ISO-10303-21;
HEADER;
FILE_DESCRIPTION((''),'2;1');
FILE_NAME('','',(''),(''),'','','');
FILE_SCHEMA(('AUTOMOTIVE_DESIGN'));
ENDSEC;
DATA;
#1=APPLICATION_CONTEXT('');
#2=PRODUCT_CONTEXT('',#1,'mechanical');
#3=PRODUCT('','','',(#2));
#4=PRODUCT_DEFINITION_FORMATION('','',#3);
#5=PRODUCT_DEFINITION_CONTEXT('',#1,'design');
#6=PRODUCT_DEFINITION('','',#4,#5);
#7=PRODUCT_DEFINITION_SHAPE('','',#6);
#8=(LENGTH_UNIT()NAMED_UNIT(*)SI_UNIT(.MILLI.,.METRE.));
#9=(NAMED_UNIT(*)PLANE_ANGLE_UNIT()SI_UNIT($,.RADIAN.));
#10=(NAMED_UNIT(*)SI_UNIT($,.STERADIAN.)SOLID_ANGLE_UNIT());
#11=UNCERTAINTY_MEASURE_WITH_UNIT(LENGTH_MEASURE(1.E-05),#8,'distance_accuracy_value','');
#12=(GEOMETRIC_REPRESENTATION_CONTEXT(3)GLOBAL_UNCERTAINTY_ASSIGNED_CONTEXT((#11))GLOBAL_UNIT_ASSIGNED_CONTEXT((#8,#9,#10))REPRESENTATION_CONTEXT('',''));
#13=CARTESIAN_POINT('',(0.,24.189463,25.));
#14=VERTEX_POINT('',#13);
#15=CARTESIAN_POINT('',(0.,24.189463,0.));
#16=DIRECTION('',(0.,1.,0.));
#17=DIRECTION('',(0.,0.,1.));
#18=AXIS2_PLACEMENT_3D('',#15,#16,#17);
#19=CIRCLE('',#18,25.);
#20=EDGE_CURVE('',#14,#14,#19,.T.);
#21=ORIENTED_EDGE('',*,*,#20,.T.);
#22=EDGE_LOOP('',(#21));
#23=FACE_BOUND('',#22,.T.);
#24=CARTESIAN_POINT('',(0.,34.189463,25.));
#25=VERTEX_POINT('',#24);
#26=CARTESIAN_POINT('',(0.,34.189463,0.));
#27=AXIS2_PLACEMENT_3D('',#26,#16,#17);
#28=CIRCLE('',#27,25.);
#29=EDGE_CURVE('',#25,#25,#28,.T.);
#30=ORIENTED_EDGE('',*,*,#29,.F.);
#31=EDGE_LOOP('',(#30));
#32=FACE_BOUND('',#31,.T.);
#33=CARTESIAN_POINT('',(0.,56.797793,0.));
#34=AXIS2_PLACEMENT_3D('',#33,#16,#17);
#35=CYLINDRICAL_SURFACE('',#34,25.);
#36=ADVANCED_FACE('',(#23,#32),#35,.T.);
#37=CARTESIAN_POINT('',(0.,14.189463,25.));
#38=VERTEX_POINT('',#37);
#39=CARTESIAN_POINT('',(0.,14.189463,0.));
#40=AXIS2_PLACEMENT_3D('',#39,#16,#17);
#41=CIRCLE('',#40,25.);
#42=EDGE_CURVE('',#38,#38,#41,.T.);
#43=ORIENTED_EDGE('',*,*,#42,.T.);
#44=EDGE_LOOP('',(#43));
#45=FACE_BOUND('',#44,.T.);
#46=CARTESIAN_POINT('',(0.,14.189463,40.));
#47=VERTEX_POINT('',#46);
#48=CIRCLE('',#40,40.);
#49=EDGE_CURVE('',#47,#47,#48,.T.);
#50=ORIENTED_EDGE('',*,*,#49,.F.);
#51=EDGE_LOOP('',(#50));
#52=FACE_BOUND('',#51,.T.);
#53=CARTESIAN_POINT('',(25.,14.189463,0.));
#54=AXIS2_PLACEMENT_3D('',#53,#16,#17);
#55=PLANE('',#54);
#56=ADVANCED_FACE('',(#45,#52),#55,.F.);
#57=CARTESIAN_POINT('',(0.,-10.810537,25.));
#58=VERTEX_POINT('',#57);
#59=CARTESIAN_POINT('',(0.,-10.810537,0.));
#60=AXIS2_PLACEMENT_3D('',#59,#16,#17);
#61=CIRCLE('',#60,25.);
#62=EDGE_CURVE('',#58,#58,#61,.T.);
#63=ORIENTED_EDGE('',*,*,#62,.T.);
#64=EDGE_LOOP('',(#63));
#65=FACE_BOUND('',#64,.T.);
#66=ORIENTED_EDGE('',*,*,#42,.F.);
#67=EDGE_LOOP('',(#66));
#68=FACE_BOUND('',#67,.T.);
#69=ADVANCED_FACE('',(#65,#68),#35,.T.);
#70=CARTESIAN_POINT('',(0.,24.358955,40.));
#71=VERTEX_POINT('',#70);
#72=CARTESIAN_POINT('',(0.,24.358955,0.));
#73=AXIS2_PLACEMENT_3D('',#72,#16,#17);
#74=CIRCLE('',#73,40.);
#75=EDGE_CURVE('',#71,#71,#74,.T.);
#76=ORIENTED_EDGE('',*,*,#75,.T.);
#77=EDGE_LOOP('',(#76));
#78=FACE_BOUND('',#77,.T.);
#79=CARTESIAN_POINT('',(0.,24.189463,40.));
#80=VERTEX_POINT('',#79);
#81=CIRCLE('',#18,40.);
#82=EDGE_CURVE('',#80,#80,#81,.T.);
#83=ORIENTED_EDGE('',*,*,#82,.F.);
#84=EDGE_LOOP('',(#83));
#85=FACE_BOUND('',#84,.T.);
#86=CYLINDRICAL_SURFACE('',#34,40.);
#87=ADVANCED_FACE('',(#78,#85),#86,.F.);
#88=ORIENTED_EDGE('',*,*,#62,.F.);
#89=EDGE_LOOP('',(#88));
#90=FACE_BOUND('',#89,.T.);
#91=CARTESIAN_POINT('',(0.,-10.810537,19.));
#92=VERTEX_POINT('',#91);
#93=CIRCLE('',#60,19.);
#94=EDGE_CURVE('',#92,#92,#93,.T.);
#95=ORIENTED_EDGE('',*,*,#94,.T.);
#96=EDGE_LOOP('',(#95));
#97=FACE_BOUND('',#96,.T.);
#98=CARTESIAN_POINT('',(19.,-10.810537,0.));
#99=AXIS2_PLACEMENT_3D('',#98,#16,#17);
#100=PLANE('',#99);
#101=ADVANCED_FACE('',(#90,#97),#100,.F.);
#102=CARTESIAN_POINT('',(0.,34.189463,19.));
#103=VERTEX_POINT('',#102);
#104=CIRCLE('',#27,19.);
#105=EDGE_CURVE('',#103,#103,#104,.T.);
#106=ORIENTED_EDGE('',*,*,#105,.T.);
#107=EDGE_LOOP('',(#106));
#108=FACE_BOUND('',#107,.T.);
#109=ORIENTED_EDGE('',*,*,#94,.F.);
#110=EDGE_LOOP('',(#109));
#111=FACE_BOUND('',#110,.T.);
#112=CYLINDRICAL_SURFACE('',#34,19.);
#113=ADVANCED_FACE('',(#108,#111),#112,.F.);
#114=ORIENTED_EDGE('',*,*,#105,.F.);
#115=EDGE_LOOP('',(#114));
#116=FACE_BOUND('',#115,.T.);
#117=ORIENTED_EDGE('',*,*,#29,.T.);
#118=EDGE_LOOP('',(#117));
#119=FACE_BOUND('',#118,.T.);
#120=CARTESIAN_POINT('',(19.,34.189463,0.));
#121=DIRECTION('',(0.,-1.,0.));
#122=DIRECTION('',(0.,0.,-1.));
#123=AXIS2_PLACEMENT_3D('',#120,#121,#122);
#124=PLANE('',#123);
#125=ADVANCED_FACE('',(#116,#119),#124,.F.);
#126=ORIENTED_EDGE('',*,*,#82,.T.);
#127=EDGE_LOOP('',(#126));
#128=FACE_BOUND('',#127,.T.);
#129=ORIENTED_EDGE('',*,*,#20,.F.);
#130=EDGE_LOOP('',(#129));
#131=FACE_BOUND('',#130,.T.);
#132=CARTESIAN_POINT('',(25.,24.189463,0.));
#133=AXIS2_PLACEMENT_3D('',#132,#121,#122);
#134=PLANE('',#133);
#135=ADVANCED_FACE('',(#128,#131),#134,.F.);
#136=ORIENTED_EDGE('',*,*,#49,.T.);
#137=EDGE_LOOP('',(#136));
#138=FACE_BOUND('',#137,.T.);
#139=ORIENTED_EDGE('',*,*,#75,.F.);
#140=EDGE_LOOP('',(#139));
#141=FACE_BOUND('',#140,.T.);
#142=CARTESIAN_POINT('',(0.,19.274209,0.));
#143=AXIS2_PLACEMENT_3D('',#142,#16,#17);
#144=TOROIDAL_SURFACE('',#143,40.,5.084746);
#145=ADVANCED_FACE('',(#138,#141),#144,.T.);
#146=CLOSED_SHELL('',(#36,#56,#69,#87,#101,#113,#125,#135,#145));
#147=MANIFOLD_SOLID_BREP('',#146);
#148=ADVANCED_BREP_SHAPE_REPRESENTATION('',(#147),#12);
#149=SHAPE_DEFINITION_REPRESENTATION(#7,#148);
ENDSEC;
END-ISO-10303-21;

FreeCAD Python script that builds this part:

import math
import FreeCAD as App
import Part
import Sketcher
from FreeCAD import Vector

doc = App.newDocument("Part")
params = doc.addObject("Spreadsheet::Sheet", "Params")
for row, (alias, value) in enumerate([
    ("sketch1_width", "6 mm"),
    ("sketch1_width2", "15 mm"),
    ("sketch1_height", "45 mm"),
    ("sketch1_height2", "25 mm"),
    ("sketch1_height3", "10 mm"),
    ("revolution_angle", "360 deg"),
], start=1):
    params.set(f"A{row}", alias)
    params.set(f"B{row}", "=" + value)
    params.setAlias(f"B{row}", alias)

body = doc.addObject("PartDesign::Body", "Body")

# Sketch on XY plane
sketch1 = body.newObject("Sketcher::SketchObject", "Sketch")
sketch1.AttachmentSupport = (doc.getObject("XY_Plane"), [""])
sketch1.MapMode = "FlatFace"
sketch1.addGeometry([
    Part.LineSegment(Vector(19, 34.189463, 0), Vector(19, -10.810537, 0)),  # 0
    Part.LineSegment(Vector(19, -10.810537, 0), Vector(25, -10.810537, 0)),  # 1
    Part.LineSegment(Vector(25, -10.810537, 0), Vector(25, 14.189463, 0)),  # 2
    Part.LineSegment(Vector(25, 14.189463, 0), Vector(40, 14.189463, 0)),  # 3
    Part.ArcOfCircle(Part.Circle(Vector(40, 19.274209, 0), Vector(0, 0, 1), 5.084746), math.radians(-90), math.radians(90)),  # 4
    Part.LineSegment(Vector(40, 24.358955, 0), Vector(40, 24.189463, 0)),  # 5
    Part.LineSegment(Vector(40, 24.189463, 0), Vector(25, 24.189463, 0)),  # 6
    Part.LineSegment(Vector(25, 24.189463, 0), Vector(25, 34.189463, 0)),  # 7
    Part.LineSegment(Vector(25, 34.189463, 0), Vector(19, 34.189463, 0)),  # 8
], False)
sketch1.addConstraint([
    Sketcher.Constraint("Coincident", 0, 2, 1, 1),
    Sketcher.Constraint("Coincident", 1, 2, 2, 1),
    Sketcher.Constraint("Coincident", 2, 2, 3, 1),
    Sketcher.Constraint("Tangent", 3, 2, 4, 1),
    Sketcher.Constraint("Coincident", 4, 2, 5, 1),
    Sketcher.Constraint("Coincident", 5, 2, 6, 1),
    Sketcher.Constraint("Coincident", 6, 2, 7, 1),
    Sketcher.Constraint("Coincident", 7, 2, 8, 1),
    Sketcher.Constraint("Coincident", 8, 2, 0, 1),
    Sketcher.Constraint("Vertical", 0),
    Sketcher.Constraint("Horizontal", 1),
    Sketcher.Constraint("Vertical", 2),
    Sketcher.Constraint("Horizontal", 3),
    Sketcher.Constraint("Vertical", 5),
    Sketcher.Constraint("Horizontal", 6),
    Sketcher.Constraint("Vertical", 7),
    Sketcher.Constraint("Horizontal", 8),
    Sketcher.Constraint("Vertical", 3, 2, 4, 2),
    Sketcher.Constraint("Vertical", 2, 2, 6, 2),
    Sketcher.Constraint("DistanceX", 1, 1, 1, 2, 6.0),
    Sketcher.Constraint("DistanceX", 3, 1, 3, 2, 15.0),
    Sketcher.Constraint("DistanceY", 0, 2, 0, 1, 45.0),
    Sketcher.Constraint("DistanceY", 2, 1, 2, 2, 25.0),
    Sketcher.Constraint("DistanceY", 7, 1, 7, 2, 10.0),
    Sketcher.Constraint("DistanceX", -1, 1, 4, 3, 40.0),
    Sketcher.Constraint("Radius", 4, 5.084746),
    Sketcher.Constraint("DistanceY", -1, 1, 4, 3, 19.274209),
])
sketch1.setExpression("Constraints[19]", "Params.sketch1_width")
sketch1.setExpression("Constraints[20]", "Params.sketch1_width2")
sketch1.setExpression("Constraints[21]", "Params.sketch1_height")
sketch1.setExpression("Constraints[22]", "Params.sketch1_height2")
sketch1.setExpression("Constraints[23]", "Params.sketch1_height3")
revolution = body.newObject("PartDesign::Revolution", "Revolution")
revolution.Profile = sketch1
revolution.ReferenceAxis = (sketch1, ["V_Axis"])
revolution.setExpression("Angle", "Params.revolution_angle")

doc.recompute()
